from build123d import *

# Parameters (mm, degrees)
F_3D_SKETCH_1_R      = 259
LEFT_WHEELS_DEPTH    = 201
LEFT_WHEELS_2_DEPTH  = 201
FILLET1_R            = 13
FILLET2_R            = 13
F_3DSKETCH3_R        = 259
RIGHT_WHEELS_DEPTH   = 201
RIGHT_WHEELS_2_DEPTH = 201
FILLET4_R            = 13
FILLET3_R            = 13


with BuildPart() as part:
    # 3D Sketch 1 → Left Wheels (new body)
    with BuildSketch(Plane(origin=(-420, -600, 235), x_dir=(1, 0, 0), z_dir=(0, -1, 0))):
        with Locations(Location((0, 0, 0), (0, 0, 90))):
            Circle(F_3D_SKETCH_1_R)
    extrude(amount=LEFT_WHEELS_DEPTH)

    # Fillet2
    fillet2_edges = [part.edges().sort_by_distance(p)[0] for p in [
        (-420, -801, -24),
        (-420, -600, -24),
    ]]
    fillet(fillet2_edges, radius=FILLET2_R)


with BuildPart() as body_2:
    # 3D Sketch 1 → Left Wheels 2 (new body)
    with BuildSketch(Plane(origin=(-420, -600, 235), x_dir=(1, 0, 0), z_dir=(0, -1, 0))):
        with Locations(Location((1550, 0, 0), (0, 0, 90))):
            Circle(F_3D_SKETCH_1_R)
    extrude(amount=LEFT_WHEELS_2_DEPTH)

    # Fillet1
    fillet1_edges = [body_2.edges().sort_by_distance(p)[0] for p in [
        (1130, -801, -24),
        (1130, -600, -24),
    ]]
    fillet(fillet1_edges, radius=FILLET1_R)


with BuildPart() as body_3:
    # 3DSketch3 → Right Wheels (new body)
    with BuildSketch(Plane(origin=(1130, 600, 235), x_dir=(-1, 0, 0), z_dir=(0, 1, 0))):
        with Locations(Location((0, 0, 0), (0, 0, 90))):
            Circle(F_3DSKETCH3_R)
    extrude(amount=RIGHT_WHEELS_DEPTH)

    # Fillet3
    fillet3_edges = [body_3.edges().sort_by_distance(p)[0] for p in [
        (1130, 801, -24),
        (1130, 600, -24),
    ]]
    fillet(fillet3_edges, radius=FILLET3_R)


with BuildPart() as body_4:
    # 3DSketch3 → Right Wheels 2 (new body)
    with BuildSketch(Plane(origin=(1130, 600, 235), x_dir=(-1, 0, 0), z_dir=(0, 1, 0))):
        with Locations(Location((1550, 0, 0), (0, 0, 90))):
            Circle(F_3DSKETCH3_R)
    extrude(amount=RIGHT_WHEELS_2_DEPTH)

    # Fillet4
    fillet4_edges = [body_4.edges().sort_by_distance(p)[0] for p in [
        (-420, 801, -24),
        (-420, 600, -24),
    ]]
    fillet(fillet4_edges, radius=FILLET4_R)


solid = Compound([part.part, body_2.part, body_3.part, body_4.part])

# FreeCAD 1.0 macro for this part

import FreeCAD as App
import Part
import Sketcher


def edges_at(feature, points):
    """Names of the edges that pass closest to the given points."""
    edges = feature.Shape.Edges
    near = lambda p: min(range(len(edges)), key=lambda i: edges[i].distToShape(Part.Vertex(*p))[0])
    return sorted({f"Edge{near(p) + 1}" for p in points})

doc = App.newDocument("Part")
body = doc.addObject("PartDesign::Body", "Body")

sketch1 = body.newObject("Sketcher::SketchObject", "Sketch")
sketch1.AttachmentSupport = (doc.getObject("XZ_Plane"), [""])
sketch1.MapMode = "FlatFace"
sketch1.AttachmentOffset = App.Placement(App.Vector(0, 0, 600), App.Rotation())
sketch1.addGeometry(Part.Circle(App.Vector(-420, 235, 0), App.Vector(0, 0, 1), 259), False)
sketch1.addConstraint(Sketcher.Constraint("Diameter", 0, 518.0))
sketch1.addConstraint(Sketcher.Constraint("DistanceX", 0, 3, -1, 1, 420.0))
sketch1.addConstraint(Sketcher.Constraint("DistanceY", -1, 1, 0, 3, 235.0))
pad1 = body.newObject("PartDesign::Pad", "Pad")
pad1.Profile = sketch1
pad1.Length = 201
doc.recompute()

fillet = body.newObject("PartDesign::Fillet", "Fillet")
fillet.Base = (pad1, edges_at(pad1, [(-420, -801, -24), (-420, -600, -24)]))
fillet.Radius = 13
body2 = doc.addObject("PartDesign::Body", "Body001")

sketch2 = body2.newObject("Sketcher::SketchObject", "Sketch001")
sketch2.AttachmentSupport = (doc.getObject("XZ_Plane001"), [""])
sketch2.MapMode = "FlatFace"
sketch2.AttachmentOffset = App.Placement(App.Vector(0, 0, 600), App.Rotation())
sketch2.addGeometry(Part.Circle(App.Vector(1130, 235, 0), App.Vector(0, 0, 1), 259), False)
sketch2.addConstraint(Sketcher.Constraint("Diameter", 0, 518.0))
sketch2.addConstraint(Sketcher.Constraint("DistanceX", -1, 1, 0, 3, 1130.0))
sketch2.addConstraint(Sketcher.Constraint("DistanceY", -1, 1, 0, 3, 235.0))
pad2 = body2.newObject("PartDesign::Pad", "Pad001")
pad2.Profile = sketch2
pad2.Length = 201
doc.recompute()

fillet2 = body2.newObject("PartDesign::Fillet", "Fillet001")
fillet2.Base = (pad2, edges_at(pad2, [(1130, -801, -24), (1130, -600, -24)]))
fillet2.Radius = 13
body3 = doc.addObject("PartDesign::Body", "Body002")

sketch3 = body3.newObject("Sketcher::SketchObject", "Sketch002")
sketch3.AttachmentSupport = (doc.getObject("XZ_Plane002"), [""])
sketch3.MapMode = "FlatFace"
sketch3.AttachmentOffset = App.Placement(App.Vector(0, 0, -600), App.Rotation())
sketch3.addGeometry(Part.Circle(App.Vector(1130, 235, 0), App.Vector(0, 0, 1), 259), False)
sketch3.addConstraint(Sketcher.Constraint("Diameter", 0, 518.0))
sketch3.addConstraint(Sketcher.Constraint("DistanceX", -1, 1, 0, 3, 1130.0))
sketch3.addConstraint(Sketcher.Constraint("DistanceY", -1, 1, 0, 3, 235.0))
pad3 = body3.newObject("PartDesign::Pad", "Pad002")
pad3.Profile = sketch3
pad3.Length = 201
pad3.Reversed = True
doc.recompute()

fillet3 = body3.newObject("PartDesign::Fillet", "Fillet002")
fillet3.Base = (pad3, edges_at(pad3, [(1130, 801, -24), (1130, 600, -24)]))
fillet3.Radius = 13
body4 = doc.addObject("PartDesign::Body", "Body003")

sketch4 = body4.newObject("Sketcher::SketchObject", "Sketch003")
sketch4.AttachmentSupport = (doc.getObject("XZ_Plane003"), [""])
sketch4.MapMode = "FlatFace"
sketch4.AttachmentOffset = App.Placement(App.Vector(0, 0, -600), App.Rotation())
sketch4.addGeometry(Part.Circle(App.Vector(-420, 235, 0), App.Vector(0, 0, 1), 259), False)
sketch4.addConstraint(Sketcher.Constraint("Diameter", 0, 518.0))
sketch4.addConstraint(Sketcher.Constraint("DistanceX", 0, 3, -1, 1, 420.0))
sketch4.addConstraint(Sketcher.Constraint("DistanceY", -1, 1, 0, 3, 235.0))
pad4 = body4.newObject("PartDesign::Pad", "Pad003")
pad4.Profile = sketch4
pad4.Length = 201
pad4.Reversed = True
doc.recompute()

fillet4 = body4.newObject("PartDesign::Fillet", "Fillet003")
fillet4.Base = (pad4, edges_at(pad4, [(-420, 801, -24), (-420, 600, -24)]))
fillet4.Radius = 13

doc.recompute()
